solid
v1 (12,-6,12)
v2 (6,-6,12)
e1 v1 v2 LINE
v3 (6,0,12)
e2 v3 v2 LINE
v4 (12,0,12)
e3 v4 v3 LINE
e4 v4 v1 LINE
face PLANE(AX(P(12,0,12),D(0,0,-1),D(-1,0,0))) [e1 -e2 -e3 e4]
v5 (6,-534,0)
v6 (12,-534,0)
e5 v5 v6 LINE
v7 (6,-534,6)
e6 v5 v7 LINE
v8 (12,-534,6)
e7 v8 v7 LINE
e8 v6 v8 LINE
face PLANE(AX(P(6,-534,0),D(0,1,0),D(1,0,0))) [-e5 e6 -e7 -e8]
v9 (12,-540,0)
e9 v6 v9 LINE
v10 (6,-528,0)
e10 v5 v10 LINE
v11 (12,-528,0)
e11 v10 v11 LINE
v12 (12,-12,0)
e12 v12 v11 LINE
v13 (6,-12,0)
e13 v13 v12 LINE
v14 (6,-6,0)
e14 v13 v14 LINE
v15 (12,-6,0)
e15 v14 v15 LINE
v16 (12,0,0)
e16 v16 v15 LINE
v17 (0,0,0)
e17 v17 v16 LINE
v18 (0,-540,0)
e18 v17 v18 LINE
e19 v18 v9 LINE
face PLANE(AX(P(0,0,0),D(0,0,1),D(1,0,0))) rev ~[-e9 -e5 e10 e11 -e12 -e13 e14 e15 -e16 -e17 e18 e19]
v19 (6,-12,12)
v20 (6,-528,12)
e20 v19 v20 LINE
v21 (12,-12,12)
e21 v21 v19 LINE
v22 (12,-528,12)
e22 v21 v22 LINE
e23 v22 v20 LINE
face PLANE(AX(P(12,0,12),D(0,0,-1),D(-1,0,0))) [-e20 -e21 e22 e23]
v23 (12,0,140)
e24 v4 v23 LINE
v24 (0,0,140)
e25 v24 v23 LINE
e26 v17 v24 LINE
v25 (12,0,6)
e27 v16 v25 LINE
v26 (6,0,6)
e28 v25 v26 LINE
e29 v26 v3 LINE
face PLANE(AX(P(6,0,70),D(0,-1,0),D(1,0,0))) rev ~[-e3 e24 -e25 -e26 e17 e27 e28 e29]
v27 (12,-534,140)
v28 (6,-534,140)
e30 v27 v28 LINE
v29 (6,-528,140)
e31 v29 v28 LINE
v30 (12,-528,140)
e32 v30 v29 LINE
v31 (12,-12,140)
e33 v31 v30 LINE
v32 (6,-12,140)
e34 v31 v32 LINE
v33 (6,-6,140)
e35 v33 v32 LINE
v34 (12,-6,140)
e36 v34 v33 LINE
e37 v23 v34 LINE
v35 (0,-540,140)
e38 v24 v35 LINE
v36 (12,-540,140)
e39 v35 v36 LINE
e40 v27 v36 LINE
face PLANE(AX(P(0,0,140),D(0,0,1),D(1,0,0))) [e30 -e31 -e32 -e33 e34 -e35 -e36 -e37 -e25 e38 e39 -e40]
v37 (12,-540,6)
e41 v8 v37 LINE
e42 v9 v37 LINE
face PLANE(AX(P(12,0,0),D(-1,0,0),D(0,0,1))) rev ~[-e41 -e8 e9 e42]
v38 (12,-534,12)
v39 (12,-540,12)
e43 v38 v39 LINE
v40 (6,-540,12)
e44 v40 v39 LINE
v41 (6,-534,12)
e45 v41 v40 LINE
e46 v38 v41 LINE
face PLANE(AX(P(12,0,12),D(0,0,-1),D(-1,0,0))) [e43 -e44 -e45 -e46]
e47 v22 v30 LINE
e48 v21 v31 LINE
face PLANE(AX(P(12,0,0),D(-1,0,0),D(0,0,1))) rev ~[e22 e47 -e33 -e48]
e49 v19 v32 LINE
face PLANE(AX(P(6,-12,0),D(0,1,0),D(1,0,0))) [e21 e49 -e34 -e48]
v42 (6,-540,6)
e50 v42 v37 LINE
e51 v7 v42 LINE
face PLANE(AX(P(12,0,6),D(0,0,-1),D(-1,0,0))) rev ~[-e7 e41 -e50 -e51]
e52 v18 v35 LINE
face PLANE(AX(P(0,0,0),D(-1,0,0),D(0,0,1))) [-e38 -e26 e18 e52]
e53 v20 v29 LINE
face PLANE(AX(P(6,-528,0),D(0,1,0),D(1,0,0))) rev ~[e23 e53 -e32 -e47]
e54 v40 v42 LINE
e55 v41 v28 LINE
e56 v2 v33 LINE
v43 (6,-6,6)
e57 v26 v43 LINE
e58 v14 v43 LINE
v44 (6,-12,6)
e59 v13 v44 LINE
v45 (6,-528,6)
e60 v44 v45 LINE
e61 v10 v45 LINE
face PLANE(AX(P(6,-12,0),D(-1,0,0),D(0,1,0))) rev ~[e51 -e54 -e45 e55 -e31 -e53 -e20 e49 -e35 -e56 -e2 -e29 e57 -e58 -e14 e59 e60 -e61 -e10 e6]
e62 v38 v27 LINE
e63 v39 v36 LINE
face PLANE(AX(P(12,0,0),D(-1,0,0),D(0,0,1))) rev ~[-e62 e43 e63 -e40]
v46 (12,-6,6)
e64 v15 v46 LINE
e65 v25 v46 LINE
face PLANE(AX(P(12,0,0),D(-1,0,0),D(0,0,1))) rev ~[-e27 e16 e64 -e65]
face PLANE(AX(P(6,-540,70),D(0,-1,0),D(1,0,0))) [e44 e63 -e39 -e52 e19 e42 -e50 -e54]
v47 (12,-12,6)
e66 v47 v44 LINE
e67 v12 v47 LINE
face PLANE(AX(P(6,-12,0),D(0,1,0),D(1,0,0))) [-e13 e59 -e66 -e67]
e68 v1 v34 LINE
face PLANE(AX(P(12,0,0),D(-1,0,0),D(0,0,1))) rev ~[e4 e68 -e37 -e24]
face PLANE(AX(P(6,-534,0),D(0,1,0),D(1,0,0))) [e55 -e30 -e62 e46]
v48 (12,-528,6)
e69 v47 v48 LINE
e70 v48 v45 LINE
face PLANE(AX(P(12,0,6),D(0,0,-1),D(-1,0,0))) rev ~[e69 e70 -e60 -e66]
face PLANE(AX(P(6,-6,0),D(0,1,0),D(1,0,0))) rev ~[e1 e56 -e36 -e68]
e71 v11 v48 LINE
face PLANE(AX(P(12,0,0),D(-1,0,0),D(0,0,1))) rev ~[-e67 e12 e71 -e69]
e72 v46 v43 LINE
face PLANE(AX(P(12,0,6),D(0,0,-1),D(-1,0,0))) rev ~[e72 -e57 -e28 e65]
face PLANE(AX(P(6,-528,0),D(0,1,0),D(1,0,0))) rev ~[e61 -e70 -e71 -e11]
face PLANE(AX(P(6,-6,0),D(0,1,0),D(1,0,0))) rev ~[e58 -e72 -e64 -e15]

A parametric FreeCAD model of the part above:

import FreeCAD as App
import Part
import Sketcher

V = App.Vector


def add_polygon(sketch, points):
    """Adds a closed chain of lines whose ends are joined by coincident constraints."""
    first, n = sketch.GeometryCount, len(points)
    for a, b in zip(points, points[1:] + points[:1]):
        sketch.addGeometry(Part.LineSegment(App.Vector(*a, 0), App.Vector(*b, 0)), False)
    for i in range(n):
        sketch.addConstraint(Sketcher.Constraint("Coincident", first + i, 2, first + (i + 1) % n, 1))

doc = App.newDocument("Part")
body = doc.addObject("PartDesign::Body", "Body")

# Sketch on XZ plane
sketch1 = body.newObject("Sketcher::SketchObject", "Sketch")
sketch1.AttachmentSupport = (doc.getObject("XZ_Plane"), [""])
sketch1.MapMode = "FlatFace"
add_polygon(sketch1, [(0, 140), (0, 0), (12, 0), (12, 140)])  # lines 0-3
sketch1.addConstraint(Sketcher.Constraint("Vertical", 0))
sketch1.addConstraint(Sketcher.Constraint("Horizontal", 1))
sketch1.addConstraint(Sketcher.Constraint("Vertical", 2))
sketch1.addConstraint(Sketcher.Constraint("Horizontal", 3))
sketch1.addConstraint(Sketcher.Constraint("Coincident", 0, 2, -1, 1))
sketch1.addConstraint(Sketcher.Constraint("DistanceX", 1, 1, 1, 2, 12.0))
sketch1.addConstraint(Sketcher.Constraint("DistanceY", 0, 2, 0, 1, 140.0))
pad1 = body.newObject("PartDesign::Pad", "Pad")
pad1.Profile = sketch1
pad1.Length = 540

# Sketch on XY plane
sketch2 = body.newObject("Sketcher::SketchObject", "Sketch001")
sketch2.AttachmentSupport = (doc.getObject("XY_Plane"), [""])
sketch2.MapMode = "FlatFace"
add_polygon(sketch2, [(6, -6), (6, -12), (12, -12), (12, -6)])  # lines 0-3
add_polygon(sketch2, [(6, -528), (6, -534), (12, -534), (12, -528)])  # lines 4-7
sketch2.addConstraint(Sketcher.Constraint("Vertical", 0))
sketch2.addConstraint(Sketcher.Constraint("Horizontal", 1))
sketch2.addConstraint(Sketcher.Constraint("Vertical", 2))
sketch2.addConstraint(Sketcher.Constraint("Horizontal", 3))
sketch2.addConstraint(Sketcher.Constraint("Vertical", 4))
sketch2.addConstraint(Sketcher.Constraint("Horizontal", 5))
sketch2.addConstraint(Sketcher.Constraint("Vertical", 6))
sketch2.addConstraint(Sketcher.Constraint("Horizontal", 7))
sketch2.addConstraint(Sketcher.Constraint("Vertical", 3, 2, 4, 2))
sketch2.addConstraint(Sketcher.Constraint("Vertical", 2, 2, 5, 2))
sketch2.addConstraint(Sketcher.Constraint("Equal", 7, 0))
sketch2.addConstraint(Sketcher.Constraint("Equal", 2, 4))
sketch2.addConstraint(Sketcher.Constraint("DistanceX", 1, 1, 1, 2, 6.0))
sketch2.addConstraint(Sketcher.Constraint("DistanceX", -1, 1, 0, 2, 6.0))
sketch2.addConstraint(Sketcher.Constraint("DistanceY", 0, 2, -1, 1, 12.0))
sketch2.addConstraint(Sketcher.Constraint("DistanceY", 4, 2, -1, 1, 534.0))
pocket1 = body.newObject("PartDesign::Pocket", "Pocket")
pocket1.Profile = sketch2
pocket1.Type = "ThroughAll"
pocket1.Reversed = True

# Sketch on XZ plane
sketch3 = body.newObject("Sketcher::SketchObject", "Sketch002")
sketch3.AttachmentSupport = (doc.getObject("XZ_Plane"), [""])
sketch3.MapMode = "FlatFace"
add_polygon(sketch3, [(12, 12), (12, 6), (6, 6), (6, 12)])  # lines 0-3
sketch3.addConstraint(Sketcher.Constraint("Vertical", 0))
sketch3.addConstraint(Sketcher.Constraint("Horizontal", 1))
sketch3.addConstraint(Sketcher.Constraint("Vertical", 2))
sketch3.addConstraint(Sketcher.Constraint("Horizontal", 3))
sketch3.addConstraint(Sketcher.Constraint("Equal", 3, 0))
sketch3.addConstraint(Sketcher.Constraint("DistanceX", 1, 2, 1, 1, 6.0))
sketch3.addConstraint(Sketcher.Constraint("DistanceX", -1, 1, 0, 2, 12.0))
sketch3.addConstraint(Sketcher.Constraint("DistanceY", -1, 1, 0, 2, 6.0))
pocket2 = body.newObject("PartDesign::Pocket", "Pocket001")
pocket2.Profile = sketch3
pocket2.Type = "ThroughAll"
pocket2.Reversed = True

doc.recompute()
